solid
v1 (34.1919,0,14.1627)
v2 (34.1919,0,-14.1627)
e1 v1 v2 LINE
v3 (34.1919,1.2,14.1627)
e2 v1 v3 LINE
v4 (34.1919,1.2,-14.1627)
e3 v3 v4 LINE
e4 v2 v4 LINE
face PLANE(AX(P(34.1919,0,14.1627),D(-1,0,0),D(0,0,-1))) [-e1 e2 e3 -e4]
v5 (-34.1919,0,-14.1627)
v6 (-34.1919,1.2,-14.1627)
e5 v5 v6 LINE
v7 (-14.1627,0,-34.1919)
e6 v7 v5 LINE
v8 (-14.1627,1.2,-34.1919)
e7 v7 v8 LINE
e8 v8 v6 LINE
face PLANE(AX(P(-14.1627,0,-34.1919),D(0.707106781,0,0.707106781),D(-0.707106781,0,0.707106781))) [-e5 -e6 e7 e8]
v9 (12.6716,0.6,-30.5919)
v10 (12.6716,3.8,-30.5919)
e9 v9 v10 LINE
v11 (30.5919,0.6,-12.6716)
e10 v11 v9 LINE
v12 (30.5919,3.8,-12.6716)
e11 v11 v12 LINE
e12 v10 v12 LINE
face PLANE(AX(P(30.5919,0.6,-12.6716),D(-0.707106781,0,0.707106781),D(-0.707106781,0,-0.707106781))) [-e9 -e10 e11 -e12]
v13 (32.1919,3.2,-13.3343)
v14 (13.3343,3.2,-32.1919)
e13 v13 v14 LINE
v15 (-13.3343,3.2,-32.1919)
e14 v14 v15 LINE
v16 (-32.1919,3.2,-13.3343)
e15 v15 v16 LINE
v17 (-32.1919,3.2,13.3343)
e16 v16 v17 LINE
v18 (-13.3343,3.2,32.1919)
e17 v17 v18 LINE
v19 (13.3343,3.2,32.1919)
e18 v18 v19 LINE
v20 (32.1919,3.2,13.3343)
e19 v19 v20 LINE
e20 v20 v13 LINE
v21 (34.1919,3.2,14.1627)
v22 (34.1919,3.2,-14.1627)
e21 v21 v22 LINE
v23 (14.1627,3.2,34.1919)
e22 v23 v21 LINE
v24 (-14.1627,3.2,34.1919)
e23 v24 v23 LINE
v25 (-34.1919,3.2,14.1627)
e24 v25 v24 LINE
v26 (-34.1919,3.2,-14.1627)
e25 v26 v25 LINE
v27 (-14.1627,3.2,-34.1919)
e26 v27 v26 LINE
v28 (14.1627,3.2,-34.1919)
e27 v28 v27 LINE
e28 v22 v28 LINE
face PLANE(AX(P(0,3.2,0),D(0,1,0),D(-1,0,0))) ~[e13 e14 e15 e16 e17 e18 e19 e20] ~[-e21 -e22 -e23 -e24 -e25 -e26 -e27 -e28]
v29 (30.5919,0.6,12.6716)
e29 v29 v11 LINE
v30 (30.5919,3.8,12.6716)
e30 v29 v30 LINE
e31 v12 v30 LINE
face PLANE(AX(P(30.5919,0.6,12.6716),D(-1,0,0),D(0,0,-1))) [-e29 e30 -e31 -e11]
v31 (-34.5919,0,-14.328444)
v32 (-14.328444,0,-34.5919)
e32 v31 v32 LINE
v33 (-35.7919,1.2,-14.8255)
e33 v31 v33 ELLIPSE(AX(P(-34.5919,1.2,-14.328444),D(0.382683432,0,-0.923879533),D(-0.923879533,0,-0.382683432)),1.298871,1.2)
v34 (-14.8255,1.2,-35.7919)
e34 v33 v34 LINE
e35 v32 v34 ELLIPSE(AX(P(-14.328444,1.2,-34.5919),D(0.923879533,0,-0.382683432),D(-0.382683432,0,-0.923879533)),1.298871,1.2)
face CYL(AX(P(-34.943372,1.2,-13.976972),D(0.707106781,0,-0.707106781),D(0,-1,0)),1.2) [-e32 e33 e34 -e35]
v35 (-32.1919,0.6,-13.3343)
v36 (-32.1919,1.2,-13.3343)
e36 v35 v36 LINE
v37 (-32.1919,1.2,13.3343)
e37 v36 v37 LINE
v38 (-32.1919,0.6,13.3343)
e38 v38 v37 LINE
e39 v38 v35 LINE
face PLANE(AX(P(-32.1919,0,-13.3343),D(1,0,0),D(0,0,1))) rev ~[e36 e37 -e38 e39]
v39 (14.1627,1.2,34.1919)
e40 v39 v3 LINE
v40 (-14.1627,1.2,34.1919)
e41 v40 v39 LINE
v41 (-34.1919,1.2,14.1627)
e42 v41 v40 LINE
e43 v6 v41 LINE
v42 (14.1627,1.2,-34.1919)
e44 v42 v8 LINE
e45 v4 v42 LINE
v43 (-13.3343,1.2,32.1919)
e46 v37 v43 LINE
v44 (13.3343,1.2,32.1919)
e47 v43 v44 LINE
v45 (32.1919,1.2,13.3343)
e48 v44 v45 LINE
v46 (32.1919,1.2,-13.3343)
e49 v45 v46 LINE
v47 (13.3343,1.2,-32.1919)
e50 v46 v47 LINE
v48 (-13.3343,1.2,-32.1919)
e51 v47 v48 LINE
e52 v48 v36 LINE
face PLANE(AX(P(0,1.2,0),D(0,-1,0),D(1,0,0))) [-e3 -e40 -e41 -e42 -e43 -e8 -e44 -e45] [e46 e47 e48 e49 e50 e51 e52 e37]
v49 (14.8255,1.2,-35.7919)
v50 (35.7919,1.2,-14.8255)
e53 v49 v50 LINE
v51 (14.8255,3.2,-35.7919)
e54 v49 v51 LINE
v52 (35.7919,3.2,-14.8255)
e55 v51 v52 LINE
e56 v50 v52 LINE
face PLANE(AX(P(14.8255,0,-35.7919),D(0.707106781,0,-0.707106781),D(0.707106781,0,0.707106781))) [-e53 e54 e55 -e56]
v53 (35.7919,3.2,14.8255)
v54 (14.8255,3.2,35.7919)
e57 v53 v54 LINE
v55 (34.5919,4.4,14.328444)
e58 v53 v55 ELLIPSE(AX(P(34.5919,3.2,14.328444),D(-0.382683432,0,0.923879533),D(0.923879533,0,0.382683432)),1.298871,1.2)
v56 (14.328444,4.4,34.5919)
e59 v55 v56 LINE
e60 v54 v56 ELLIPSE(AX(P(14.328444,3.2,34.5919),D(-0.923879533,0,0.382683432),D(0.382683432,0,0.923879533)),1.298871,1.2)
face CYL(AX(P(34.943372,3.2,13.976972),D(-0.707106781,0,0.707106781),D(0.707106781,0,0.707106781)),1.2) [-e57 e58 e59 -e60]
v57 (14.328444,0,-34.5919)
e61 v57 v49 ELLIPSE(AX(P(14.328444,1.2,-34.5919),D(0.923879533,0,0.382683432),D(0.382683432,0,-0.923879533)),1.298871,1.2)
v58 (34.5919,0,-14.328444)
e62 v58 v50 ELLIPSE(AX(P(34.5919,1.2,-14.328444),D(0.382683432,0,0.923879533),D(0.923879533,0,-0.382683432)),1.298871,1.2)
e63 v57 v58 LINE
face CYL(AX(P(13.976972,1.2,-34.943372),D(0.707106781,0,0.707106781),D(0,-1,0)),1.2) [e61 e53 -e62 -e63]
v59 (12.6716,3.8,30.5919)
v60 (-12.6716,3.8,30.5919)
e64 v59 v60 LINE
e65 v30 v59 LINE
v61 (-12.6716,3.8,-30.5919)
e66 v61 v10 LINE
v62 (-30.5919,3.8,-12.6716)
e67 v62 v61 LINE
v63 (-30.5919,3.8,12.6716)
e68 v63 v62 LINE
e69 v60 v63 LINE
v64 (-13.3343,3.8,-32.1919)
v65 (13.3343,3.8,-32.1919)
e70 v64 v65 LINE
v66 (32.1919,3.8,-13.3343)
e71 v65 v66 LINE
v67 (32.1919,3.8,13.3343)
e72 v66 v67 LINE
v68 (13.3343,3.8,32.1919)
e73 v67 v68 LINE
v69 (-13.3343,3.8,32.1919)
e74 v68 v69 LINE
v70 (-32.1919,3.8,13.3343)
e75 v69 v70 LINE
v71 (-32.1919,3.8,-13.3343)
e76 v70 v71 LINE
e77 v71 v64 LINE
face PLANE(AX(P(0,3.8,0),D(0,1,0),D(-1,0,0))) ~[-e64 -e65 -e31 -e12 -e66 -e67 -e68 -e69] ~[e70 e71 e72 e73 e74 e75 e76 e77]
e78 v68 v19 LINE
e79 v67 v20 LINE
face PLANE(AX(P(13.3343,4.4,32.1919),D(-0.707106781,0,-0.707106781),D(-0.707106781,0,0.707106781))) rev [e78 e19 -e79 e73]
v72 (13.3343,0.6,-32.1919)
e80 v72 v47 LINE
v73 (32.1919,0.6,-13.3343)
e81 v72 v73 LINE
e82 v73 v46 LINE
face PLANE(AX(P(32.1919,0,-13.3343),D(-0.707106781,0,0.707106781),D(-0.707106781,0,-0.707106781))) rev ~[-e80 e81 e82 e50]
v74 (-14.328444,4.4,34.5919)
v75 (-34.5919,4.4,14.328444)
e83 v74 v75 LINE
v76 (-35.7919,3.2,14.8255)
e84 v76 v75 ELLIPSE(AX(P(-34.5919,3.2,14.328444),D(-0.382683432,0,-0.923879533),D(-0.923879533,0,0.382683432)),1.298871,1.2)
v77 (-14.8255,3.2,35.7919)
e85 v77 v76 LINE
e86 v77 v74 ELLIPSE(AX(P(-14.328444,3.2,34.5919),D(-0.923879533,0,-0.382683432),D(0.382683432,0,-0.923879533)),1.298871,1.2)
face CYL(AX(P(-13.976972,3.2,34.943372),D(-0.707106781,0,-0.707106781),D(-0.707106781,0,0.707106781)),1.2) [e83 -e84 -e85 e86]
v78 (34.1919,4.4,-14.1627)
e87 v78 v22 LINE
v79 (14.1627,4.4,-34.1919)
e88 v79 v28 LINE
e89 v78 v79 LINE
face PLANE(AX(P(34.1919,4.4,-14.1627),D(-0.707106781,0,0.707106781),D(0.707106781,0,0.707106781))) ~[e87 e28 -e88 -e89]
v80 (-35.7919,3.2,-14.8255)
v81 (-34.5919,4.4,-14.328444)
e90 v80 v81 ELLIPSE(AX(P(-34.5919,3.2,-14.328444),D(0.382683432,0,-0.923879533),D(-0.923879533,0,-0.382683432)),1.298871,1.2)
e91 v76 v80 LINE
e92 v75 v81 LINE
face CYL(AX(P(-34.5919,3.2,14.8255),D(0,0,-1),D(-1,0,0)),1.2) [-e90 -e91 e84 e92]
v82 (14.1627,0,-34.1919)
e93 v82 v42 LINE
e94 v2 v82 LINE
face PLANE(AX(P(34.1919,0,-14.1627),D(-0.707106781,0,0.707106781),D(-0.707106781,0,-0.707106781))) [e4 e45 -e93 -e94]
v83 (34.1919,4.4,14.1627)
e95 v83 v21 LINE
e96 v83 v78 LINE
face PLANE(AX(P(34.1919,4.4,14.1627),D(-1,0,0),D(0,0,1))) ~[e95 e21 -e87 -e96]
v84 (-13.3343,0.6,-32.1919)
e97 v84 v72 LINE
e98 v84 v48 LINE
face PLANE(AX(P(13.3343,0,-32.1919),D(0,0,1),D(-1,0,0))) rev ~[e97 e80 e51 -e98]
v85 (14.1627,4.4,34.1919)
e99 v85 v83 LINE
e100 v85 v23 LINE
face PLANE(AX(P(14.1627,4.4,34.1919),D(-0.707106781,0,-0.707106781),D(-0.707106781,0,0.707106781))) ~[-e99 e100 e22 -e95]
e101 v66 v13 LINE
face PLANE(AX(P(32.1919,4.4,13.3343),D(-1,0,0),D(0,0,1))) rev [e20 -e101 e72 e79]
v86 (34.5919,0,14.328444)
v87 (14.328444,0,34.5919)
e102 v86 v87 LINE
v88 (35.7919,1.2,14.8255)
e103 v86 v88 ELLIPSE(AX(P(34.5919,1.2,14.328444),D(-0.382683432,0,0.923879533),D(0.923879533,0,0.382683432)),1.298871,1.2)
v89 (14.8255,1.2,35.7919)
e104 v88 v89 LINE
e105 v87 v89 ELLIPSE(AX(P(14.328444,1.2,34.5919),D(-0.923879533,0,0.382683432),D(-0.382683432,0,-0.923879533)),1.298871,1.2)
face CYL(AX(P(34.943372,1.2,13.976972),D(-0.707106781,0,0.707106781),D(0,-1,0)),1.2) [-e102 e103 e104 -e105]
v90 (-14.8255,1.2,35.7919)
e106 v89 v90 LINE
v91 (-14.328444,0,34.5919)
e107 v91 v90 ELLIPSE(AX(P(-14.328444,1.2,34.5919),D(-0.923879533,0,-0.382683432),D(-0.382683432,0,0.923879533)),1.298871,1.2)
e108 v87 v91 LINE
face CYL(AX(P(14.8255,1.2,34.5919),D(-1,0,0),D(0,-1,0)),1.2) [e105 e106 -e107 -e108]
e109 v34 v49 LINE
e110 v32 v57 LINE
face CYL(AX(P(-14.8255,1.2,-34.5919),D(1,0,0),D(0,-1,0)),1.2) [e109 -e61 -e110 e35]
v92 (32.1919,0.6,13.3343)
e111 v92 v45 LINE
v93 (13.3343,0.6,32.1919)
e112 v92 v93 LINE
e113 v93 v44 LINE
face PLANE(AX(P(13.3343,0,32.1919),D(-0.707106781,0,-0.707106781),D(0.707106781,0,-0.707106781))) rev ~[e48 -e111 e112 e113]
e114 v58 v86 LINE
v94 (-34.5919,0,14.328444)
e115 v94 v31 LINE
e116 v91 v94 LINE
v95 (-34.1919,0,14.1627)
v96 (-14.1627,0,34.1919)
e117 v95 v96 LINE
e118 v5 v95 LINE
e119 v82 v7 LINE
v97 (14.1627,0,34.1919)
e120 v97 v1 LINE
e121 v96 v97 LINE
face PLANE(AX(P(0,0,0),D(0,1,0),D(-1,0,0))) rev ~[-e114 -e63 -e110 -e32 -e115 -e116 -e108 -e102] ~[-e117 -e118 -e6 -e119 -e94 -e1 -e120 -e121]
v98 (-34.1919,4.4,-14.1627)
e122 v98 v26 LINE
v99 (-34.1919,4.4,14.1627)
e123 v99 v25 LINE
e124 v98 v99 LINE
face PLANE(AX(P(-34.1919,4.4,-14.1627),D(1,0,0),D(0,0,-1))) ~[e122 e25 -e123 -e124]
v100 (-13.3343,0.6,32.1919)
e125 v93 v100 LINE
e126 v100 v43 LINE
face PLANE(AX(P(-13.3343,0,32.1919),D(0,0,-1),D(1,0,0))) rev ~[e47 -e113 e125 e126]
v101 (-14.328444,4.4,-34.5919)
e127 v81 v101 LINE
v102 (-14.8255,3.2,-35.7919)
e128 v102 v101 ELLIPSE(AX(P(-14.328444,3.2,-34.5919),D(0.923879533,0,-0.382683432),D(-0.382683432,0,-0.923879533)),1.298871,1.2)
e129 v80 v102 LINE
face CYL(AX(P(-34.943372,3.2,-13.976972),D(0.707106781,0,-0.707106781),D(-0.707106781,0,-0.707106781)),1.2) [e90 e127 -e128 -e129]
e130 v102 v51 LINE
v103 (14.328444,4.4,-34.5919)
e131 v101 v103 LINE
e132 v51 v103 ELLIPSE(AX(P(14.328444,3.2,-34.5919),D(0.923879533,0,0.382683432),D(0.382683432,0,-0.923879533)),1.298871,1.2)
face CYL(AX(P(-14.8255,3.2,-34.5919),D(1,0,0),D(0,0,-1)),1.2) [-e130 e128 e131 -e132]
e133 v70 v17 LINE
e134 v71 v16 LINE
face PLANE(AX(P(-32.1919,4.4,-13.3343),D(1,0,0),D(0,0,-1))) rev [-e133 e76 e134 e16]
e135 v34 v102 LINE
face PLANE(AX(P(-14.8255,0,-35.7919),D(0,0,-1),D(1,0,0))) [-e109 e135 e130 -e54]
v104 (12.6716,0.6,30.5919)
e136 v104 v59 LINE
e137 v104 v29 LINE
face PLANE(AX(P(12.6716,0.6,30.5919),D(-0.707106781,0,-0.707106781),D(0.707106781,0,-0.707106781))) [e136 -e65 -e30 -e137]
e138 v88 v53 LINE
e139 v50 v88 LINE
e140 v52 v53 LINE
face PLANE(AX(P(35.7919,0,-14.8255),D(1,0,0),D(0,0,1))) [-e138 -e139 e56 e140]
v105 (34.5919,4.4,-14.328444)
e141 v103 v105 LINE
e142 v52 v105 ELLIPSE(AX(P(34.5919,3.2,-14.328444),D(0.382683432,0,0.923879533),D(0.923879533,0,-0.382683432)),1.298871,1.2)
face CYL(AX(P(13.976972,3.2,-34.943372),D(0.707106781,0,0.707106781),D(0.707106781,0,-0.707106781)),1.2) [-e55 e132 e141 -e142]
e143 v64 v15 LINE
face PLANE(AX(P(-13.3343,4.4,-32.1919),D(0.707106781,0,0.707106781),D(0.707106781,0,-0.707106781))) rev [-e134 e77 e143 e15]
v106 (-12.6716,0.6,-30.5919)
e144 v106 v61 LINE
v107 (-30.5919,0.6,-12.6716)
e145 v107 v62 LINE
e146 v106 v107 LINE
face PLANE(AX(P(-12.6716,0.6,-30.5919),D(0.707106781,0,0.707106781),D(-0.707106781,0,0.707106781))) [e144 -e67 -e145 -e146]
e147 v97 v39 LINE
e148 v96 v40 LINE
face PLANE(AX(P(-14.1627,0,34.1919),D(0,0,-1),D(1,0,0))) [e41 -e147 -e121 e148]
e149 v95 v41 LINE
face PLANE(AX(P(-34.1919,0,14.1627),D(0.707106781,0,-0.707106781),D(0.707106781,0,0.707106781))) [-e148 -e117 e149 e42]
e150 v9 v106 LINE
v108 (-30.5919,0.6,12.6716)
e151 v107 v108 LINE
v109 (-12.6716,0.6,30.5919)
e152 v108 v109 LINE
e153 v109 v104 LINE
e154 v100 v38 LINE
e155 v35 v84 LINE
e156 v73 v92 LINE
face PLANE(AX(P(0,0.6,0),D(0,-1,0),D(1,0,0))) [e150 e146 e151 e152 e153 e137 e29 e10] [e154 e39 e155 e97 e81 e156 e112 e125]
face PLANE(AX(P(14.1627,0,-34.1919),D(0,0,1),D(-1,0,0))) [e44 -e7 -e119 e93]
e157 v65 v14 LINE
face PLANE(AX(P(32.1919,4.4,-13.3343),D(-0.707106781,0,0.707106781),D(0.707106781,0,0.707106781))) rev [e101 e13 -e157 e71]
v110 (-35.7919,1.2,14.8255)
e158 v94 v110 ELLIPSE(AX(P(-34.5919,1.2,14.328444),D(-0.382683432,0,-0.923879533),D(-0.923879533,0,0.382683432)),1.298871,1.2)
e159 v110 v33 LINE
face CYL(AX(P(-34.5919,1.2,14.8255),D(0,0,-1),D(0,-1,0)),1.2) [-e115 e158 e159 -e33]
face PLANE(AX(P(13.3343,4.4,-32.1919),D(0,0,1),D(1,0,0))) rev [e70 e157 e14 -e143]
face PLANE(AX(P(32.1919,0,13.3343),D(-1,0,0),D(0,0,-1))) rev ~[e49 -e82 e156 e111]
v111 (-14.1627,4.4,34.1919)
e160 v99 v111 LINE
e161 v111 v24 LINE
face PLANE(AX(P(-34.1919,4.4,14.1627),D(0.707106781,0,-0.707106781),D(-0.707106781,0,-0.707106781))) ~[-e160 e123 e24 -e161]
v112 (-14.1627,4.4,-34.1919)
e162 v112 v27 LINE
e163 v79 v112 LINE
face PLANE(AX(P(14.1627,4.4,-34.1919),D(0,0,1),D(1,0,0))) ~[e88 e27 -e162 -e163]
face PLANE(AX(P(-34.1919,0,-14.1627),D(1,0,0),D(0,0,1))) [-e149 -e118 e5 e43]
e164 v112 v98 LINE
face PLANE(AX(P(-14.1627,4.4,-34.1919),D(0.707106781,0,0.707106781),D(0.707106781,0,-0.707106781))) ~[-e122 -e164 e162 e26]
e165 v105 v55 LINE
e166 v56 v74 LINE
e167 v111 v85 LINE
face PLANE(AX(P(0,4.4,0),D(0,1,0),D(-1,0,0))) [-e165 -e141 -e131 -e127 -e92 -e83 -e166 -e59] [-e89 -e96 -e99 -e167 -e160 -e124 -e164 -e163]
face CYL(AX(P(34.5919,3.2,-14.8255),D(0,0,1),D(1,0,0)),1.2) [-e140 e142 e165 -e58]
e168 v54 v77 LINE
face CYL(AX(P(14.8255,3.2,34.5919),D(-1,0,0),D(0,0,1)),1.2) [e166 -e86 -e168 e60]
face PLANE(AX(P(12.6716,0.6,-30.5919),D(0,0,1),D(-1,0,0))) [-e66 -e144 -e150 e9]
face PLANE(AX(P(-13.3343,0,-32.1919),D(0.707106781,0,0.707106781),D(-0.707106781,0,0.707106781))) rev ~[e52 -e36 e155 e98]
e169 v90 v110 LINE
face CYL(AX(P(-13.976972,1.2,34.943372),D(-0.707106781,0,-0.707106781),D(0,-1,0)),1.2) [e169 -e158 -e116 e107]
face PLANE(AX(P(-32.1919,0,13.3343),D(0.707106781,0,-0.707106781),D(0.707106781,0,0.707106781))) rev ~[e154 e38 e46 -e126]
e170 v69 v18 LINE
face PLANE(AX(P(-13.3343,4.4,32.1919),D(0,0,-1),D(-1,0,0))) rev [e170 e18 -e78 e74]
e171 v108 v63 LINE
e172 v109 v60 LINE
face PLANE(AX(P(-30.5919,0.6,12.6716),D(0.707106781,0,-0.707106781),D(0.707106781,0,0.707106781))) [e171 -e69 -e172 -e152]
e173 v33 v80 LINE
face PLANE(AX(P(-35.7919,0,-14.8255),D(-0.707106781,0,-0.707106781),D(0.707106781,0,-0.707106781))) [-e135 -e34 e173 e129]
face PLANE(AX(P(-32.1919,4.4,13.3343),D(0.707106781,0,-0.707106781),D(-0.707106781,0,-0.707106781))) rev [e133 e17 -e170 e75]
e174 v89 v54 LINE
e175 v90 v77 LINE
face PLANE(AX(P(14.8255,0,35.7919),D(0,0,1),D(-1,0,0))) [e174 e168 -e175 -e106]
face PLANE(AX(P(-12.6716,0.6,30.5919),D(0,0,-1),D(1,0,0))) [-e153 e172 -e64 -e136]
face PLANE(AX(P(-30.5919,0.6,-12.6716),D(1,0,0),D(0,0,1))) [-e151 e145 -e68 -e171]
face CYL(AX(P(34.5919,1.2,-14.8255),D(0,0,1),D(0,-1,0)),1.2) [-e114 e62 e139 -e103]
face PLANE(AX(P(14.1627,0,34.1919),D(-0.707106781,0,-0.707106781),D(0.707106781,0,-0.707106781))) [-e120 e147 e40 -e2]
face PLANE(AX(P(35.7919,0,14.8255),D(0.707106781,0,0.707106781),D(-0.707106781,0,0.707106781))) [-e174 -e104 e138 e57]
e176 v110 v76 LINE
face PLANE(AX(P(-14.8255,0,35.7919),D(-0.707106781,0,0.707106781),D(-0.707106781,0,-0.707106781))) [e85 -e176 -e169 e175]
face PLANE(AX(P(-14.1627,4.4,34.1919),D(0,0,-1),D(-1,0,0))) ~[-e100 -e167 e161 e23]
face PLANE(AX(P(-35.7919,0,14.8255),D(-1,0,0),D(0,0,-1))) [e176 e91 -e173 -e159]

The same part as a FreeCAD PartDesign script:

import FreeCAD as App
import Part
import Sketcher


def edges_at(feature, points):
    """Names of the edges that pass closest to the given points."""
    edges = feature.Shape.Edges
    near = lambda p: min(range(len(edges)), key=lambda i: edges[i].distToShape(Part.Vertex(*p))[0])
    return sorted({f"Edge{near(p) + 1}" for p in points})


def add_polygon(sketch, points):
    """Adds a closed chain of lines whose ends are joined by coincident constraints."""
    first, n = sketch.GeometryCount, len(points)
    for a, b in zip(points, points[1:] + points[:1]):
        sketch.addGeometry(Part.LineSegment(App.Vector(*a, 0), App.Vector(*b, 0)), False)
    for i in range(n):
        sketch.addConstraint(Sketcher.Constraint("Coincident", first + i, 2, first + (i + 1) % n, 1))

doc = App.newDocument("Part")
body = doc.addObject("PartDesign::Body", "Body")

sketch1 = body.newObject("Sketcher::SketchObject", "Sketch")
sketch1.AttachmentSupport = (doc.getObject("XZ_Plane"), [""])
sketch1.MapMode = "FlatFace"
add_polygon(sketch1, [(-36, -15), (-36, 15), (-15, 36), (15, 36), (36, 15), (36, -15), (15, -36), (-15, -36)])
sketch1.addConstraint([
    Sketcher.Constraint("Vertical", 0),
    Sketcher.Constraint("Horizontal", 2),
    Sketcher.Constraint("Vertical", 4),
    Sketcher.Constraint("Horizontal", 6),
    Sketcher.Constraint("Symmetric", 0, 2, 4, 2, -1, 1),
    Sketcher.Constraint("Symmetric", 1, 2, 5, 2, -1, 1),
    Sketcher.Constraint("Perpendicular", 1, 3),
    Sketcher.Constraint("Perpendicular", 5, 7),
    Sketcher.Constraint("Horizontal", 0, 2, 3, 2),
    Sketcher.Constraint("Horizontal", 4, 2, 7, 2),
    Sketcher.Constraint("Vertical", 2, 2, 5, 2),
    Sketcher.Constraint("Equal", 6, 0),
    Sketcher.Constraint("DistanceX", 2, 1, 2, 2, 29.651),
    Sketcher.Constraint("Distance", 1, 29.651),
])
pad1 = body.newObject("PartDesign::Pad", "Pad")
pad1.Profile = sketch1
pad1.Length = 4.4
pad1.Reversed = True

sketch2 = body.newObject("Sketcher::SketchObject", "Sketch001")
sketch2.AttachmentSupport = (doc.getObject("XZ_Plane"), [""])
sketch2.MapMode = "FlatFace"
add_polygon(sketch2, [(14, 34), (-14, 34), (-34, 14), (-34, -14), (-14, -34), (14, -34), (34, -14), (34, 14)])
add_polygon(sketch2, [(-32, 13), (-13, 32), (13, 32), (32, 13), (32, -13), (13, -32), (-13, -32), (-32, -13)])
sketch2.addConstraint([
    Sketcher.Constraint("Horizontal", 0),
    Sketcher.Constraint("Vertical", 2),
    Sketcher.Constraint("Horizontal", 4),
    Sketcher.Constraint("Vertical", 6),
    Sketcher.Constraint("Horizontal", 9),
    Sketcher.Constraint("Vertical", 11),
    Sketcher.Constraint("Horizontal", 13),
    Sketcher.Constraint("Vertical", 15),
    Sketcher.Constraint("Symmetric", 0, 2, 4, 2, -1, 1),
    Sketcher.Constraint("Symmetric", 1, 2, 5, 2, -1, 1),
    Sketcher.Constraint("Symmetric", 8, 2, 12, 2, -1, 1),
    Sketcher.Constraint("Symmetric", 10, 2, 14, 2, -1, 1),
    Sketcher.Constraint("Perpendicular", 1, 3),
    Sketcher.Constraint("Perpendicular", 5, 7),
    Sketcher.Constraint("Perpendicular", 7, 8),
    Sketcher.Constraint("Perpendicular", 8, 10),
    Sketcher.Constraint("Perpendicular", 10, 12),
    Sketcher.Constraint("Perpendicular", 12, 14),
    Sketcher.Constraint("Horizontal", 2, 2, 5, 2),
    Sketcher.Constraint("Horizontal", 1, 2, 6, 2),
    Sketcher.Constraint("Horizontal", 11, 2, 14, 2),
    Sketcher.Constraint("Vertical", 0, 2, 3, 2),
    Sketcher.Constraint("Equal", 4, 2),
    Sketcher.Constraint("Equal", 13, 11),
    Sketcher.Constraint("DistanceY", 8, 2, 0, 2, 2.0),
    Sketcher.Constraint("DistanceX", 0, 2, 0, 1, 28.3254),
    Sketcher.Constraint("DistanceX", 9, 1, 9, 2, 26.6686),
    Sketcher.Constraint("DistanceY", -1, 1, 0, 2, 34.192),
])
pocket1 = body.newObject("PartDesign::Pocket", "Pocket")
pocket1.Profile = sketch2
pocket1.Length = 1.2

sketch3 = body.newObject("Sketcher::SketchObject", "Sketch002")
sketch3.AttachmentSupport = (doc.getObject("XZ_Plane"), [""])
sketch3.MapMode = "FlatFace"
add_polygon(sketch3, [(32, -13), (32, 13), (13, 32), (-13, 32), (-32, 13), (-32, -13), (-13, -32), (13, -32)])
sketch3.addConstraint([
    Sketcher.Constraint("Vertical", 0),
    Sketcher.Constraint("Horizontal", 2),
    Sketcher.Constraint("Vertical", 4),
    Sketcher.Constraint("Horizontal", 6),
    Sketcher.Constraint("Symmetric", 0, 2, 4, 2, -1, 1),
    Sketcher.Constraint("Symmetric", 1, 2, 5, 2, -1, 1),
    Sketcher.Constraint("Perpendicular", 1, 3),
    Sketcher.Constraint("Perpendicular", 5, 7),
    Sketcher.Constraint("Horizontal", 0, 2, 3, 2),
    Sketcher.Constraint("Horizontal", 4, 2, 7, 2),
    Sketcher.Constraint("Vertical", 2, 2, 5, 2),
    Sketcher.Constraint("Equal", 6, 0),
    Sketcher.Constraint("DistanceX", 2, 2, 2, 1, 26.6686),
    Sketcher.Constraint("DistanceX", -1, 1, 0, 2, 32.192),
])
pocket2 = body.newObject("PartDesign::Pocket", "Pocket001")
pocket2.Profile = sketch3
pocket2.Length = 0.6

sketch4 = body.newObject("Sketcher::SketchObject", "Sketch003")
sketch4.AttachmentSupport = (doc.getObject("XZ_Plane"), [""])
sketch4.MapMode = "FlatFace"
sketch4.AttachmentOffset = App.Placement(App.Vector(0, 0, -0.6), App.Rotation())
add_polygon(sketch4, [(13, 31), (-13, 31), (-31, 13), (-31, -13), (-13, -31), (13, -31), (31, -13), (31, 13)])
sketch4.addConstraint([
    Sketcher.Constraint("Horizontal", 0),
    Sketcher.Constraint("Vertical", 2),
    Sketcher.Constraint("Horizontal", 4),
    Sketcher.Constraint("Vertical", 6),
    Sketcher.Constraint("Symmetric", 0, 2, 4, 2, -1, 1),
    Sketcher.Constraint("Symmetric", 1, 2, 5, 2, -1, 1),
    Sketcher.Constraint("Perpendicular", 1, 3),
    Sketcher.Constraint("Perpendicular", 5, 7),
    Sketcher.Constraint("Horizontal", 2, 2, 5, 2),
    Sketcher.Constraint("Horizontal", 1, 2, 6, 2),
    Sketcher.Constraint("Vertical", 0, 2, 3, 2),
    Sketcher.Constraint("Equal", 4, 2),
    Sketcher.Constraint("DistanceX", 0, 2, 0, 1, 25.3432),
    Sketcher.Constraint("DistanceY", -1, 1, 0, 2, 30.592),
])
pocket3 = body.newObject("PartDesign::Pocket", "Pocket002")
pocket3.Profile = sketch4
pocket3.Length = 3.8
doc.recompute()

datumplane = body.newObject("PartDesign::Plane", "DatumPlane")
datumplane.AttachmentSupport = (doc.getObject("XZ_Plane"), [""])
datumplane.MapMode = "FlatFace"
datumplane.AttachmentOffset = App.Placement(App.Vector(0, 0, -2.2), App.Rotation())
mirrored = body.newObject("PartDesign::Mirrored", "Mirrored")
mirrored.Originals = [pocket1, pocket2]
mirrored.MirrorPlane = (datumplane, [""])
body.Tip = mirrored
doc.recompute()

fillet = body.newObject("PartDesign::Fillet", "Fillet")
fillet.Base = (mirrored, edges_at(mirrored, [
    (0, 0, 35.792),
    (-25.309, 0, 25.309),
    (-35.792, 0, 0),
    (-25.309, 0, -25.309),
    (0, 0, -35.792),
    (25.309, 0, -25.309),
    (35.792, 0, 0),
    (25.309, 0, 25.309),
    (-25.309, 4.4, 25.309),
    (-35.792, 4.4, 0),
    (-25.309, 4.4, -25.309),
    (0, 4.4, -35.792),
    (25.309, 4.4, -25.309),
    (35.792, 4.4, 0),
    (25.309, 4.4, 25.309),
    (0, 4.4, 35.792),
]))
fillet.Radius = 1.2

doc.recompute()
